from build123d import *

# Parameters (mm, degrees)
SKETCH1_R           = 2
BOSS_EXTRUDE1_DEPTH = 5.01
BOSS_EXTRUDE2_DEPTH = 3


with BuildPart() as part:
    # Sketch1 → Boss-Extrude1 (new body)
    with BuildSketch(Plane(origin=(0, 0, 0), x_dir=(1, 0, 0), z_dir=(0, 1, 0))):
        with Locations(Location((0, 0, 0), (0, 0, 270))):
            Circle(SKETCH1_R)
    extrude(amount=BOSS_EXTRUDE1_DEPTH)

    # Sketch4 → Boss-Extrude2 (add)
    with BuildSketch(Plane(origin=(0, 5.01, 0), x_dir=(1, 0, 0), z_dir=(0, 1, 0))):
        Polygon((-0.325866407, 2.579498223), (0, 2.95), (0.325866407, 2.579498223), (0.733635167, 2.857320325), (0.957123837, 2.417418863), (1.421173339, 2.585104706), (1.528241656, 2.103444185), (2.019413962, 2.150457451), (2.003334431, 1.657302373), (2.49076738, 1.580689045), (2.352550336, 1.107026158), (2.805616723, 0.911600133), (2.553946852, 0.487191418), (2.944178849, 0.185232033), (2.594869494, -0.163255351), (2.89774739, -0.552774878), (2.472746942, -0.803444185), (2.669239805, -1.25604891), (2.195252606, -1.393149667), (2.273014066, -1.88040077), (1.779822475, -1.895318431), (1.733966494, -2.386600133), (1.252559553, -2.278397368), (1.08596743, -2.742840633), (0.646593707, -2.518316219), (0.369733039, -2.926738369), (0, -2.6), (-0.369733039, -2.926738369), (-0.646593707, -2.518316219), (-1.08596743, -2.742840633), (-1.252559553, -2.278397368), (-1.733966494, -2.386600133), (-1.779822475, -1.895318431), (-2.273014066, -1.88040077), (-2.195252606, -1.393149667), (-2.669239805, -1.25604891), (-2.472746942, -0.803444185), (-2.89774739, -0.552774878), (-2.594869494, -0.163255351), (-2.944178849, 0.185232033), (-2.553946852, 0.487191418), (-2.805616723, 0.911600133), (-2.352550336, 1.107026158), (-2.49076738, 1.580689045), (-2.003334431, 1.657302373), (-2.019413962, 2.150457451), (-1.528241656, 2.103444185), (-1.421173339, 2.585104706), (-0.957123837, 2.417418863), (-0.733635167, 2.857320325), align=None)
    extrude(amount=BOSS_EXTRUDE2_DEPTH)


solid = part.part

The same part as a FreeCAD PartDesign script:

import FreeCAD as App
import Part
import Sketcher


def add_polygon(sketch, points):
    """Adds a closed chain of lines whose ends are joined by coincident constraints."""
    first, n = sketch.GeometryCount, len(points)
    for a, b in zip(points, points[1:] + points[:1]):
        sketch.addGeometry(Part.LineSegment(App.Vector(*a, 0), App.Vector(*b, 0)), False)
    for i in range(n):
        sketch.addConstraint(Sketcher.Constraint("Coincident", first + i, 2, first + (i + 1) % n, 1))

doc = App.newDocument("Part")
body = doc.addObject("PartDesign::Body", "Body")

sketch1 = body.newObject("Sketcher::SketchObject", "Sketch")
sketch1.AttachmentSupport = (doc.getObject("XZ_Plane"), [""])
sketch1.MapMode = "FlatFace"
sketch1.addGeometry(Part.Circle(App.Vector(0, 0, 0), App.Vector(0, 0, 1), 2), False)
sketch1.addConstraint([
    Sketcher.Constraint("Coincident", 0, 3, -1, 1),
    Sketcher.Constraint("Diameter", 0, 4.0),
])
pad1 = body.newObject("PartDesign::Pad", "Pad")
pad1.Profile = sketch1
pad1.Length = 5.01
pad1.Reversed = True

sketch2 = body.newObject("Sketcher::SketchObject", "Sketch001")
sketch2.AttachmentSupport = (doc.getObject("XZ_Plane"), [""])
sketch2.MapMode = "FlatFace"
sketch2.AttachmentOffset = App.Placement(App.Vector(0, 0, -5.01), App.Rotation())
add_polygon(sketch2, [(0, -2.95), (-0.325866, -2.579498), (-0.733635, -2.85732), (-0.957124, -2.417419), (-1.421173, -2.585105), (-1.528242, -2.103444), (-2.019414, -2.150457), (-2.003334, -1.657302), (-2.490767, -1.580689), (-2.35255, -1.107026), (-2.805617, -0.9116), (-2.553947, -0.487191), (-2.944179, -0.185232), (-2.594869, 0.163255), (-2.897747, 0.552775), (-2.472747, 0.803444), (-2.66924, 1.256049), (-2.195253, 1.39315), (-2.273014, 1.880401), (-1.779822, 1.895318), (-1.733966, 2.3866), (-1.25256, 2.278397), (-1.085967, 2.742841), (-0.646594, 2.518316), (-0.369733, 2.926738), (0, 2.6), (0.369733, 2.926738), (0.646594, 2.518316), (1.085967, 2.742841), (1.25256, 2.278397), (1.733966, 2.3866), (1.779822, 1.895318), (2.273014, 1.880401), (2.195253, 1.39315), (2.66924, 1.256049), (2.472747, 0.803444), (2.897747, 0.552775), (2.594869, 0.163255), (2.944179, -0.185232), (2.553947, -0.487191), (2.805617, -0.9116), (2.35255, -1.107026), (2.490767, -1.580689), (2.003334, -1.657302), (2.019414, -2.150457), (1.528242, -2.103444), (1.421173, -2.585105), (0.957124, -2.417419), (0.733635, -2.85732), (0.325866, -2.579498)])
sketch2.addConstraint([
    Sketcher.Constraint("PointOnObject", 24, 2, -2),
    Sketcher.Constraint("PointOnObject", 49, 2, -2),
    Sketcher.Constraint("DistanceY", -1, 1, 24, 2, 2.6),
    Sketcher.Constraint("DistanceY", 49, 2, -1, 1, 2.95),
    Sketcher.Constraint("DistanceX", 13, 2, 14, 2, 0.425),
    Sketcher.Constraint("DistanceX", 19, 2, 21, 2, 0.647999),
    Sketcher.Constraint("DistanceX", 27, 2, 29, 2, 0.647999),
    Sketcher.Constraint("DistanceX", 34, 2, 35, 2, 0.425),
    Sketcher.Constraint("DistanceY", 0, 2, -1, 1, 2.579498),
    Sketcher.Constraint("DistanceY", 9, 2, -1, 1, 0.9116),
    Sketcher.Constraint("DistanceY", -1, 1, 17, 2, 1.880401),
    Sketcher.Constraint("DistanceY", -1, 1, 19, 2, 2.3866),
    Sketcher.Constraint("DistanceY", -1, 1, 29, 2, 2.3866),
    Sketcher.Constraint("DistanceY", -1, 1, 31, 2, 1.880401),
    Sketcher.Constraint("DistanceY", 39, 2, -1, 1, 0.9116),
    Sketcher.Constraint("DistanceY", 48, 2, -1, 1, 2.579498),
    Sketcher.Constraint("DistanceY", 1, 2, 2, 2, 0.439901),
    Sketcher.Constraint("DistanceX", 6, 2, 1, 2, 1.269699),
    Sketcher.Constraint("DistanceX", 13, 2, 10, 2, 0.343801),
    Sketcher.Constraint("DistanceY", 8, 2, 13, 2, 1.659801),
    Sketcher.Constraint("DistanceY", 15, 2, 16, 2, 0.137101),
    Sketcher.Constraint("DistanceX", 21, 2, 25, 2, 1.4557),
    Sketcher.Constraint("DistanceX", 23, 2, 27, 2, 1.4557),
    Sketcher.Constraint("DistanceY", 33, 2, 32, 2, 0.137101),
    Sketcher.Constraint("DistanceX", 38, 2, 35, 2, 0.343801),
    Sketcher.Constraint("DistanceY", 40, 2, 35, 2, 1.659801),
    Sketcher.Constraint("DistanceY", 47, 2, 46, 2, 0.439901),
    Sketcher.Constraint("DistanceX", 0, 2, 47, 2, 1.059502),
    Sketcher.Constraint("DistanceX", 1, 2, 48, 2, 1.059502),
    Sketcher.Constraint("DistanceY", 1, 2, -1, 1, 2.85732),
    Sketcher.Constraint("DistanceX", 4, 2, -1, 1, 1.528242),
    Sketcher.Constraint("DistanceY", 7, 2, -1, 1, 1.580689),
    Sketcher.Constraint("DistanceX", 8, 2, -1, 1, 2.35255),
    Sketcher.Constraint("DistanceY", 10, 2, -1, 1, 0.487191),
    Sketcher.Constraint("DistanceX", 11, 2, -1, 1, 2.944179),
    Sketcher.Constraint("DistanceX", 12, 2, -1, 1, 2.594869),
    Sketcher.Constraint("DistanceX", 15, 2, -1, 1, 2.66924),
    Sketcher.Constraint("DistanceY", -1, 1, 15, 2, 1.256049),
    Sketcher.Constraint("DistanceY", -1, 1, 18, 2, 1.895318),
    Sketcher.Constraint("DistanceX", 20, 2, -1, 1, 1.25256),
    Sketcher.Constraint("DistanceY", -1, 1, 21, 2, 2.742841),
    Sketcher.Constraint("DistanceY", -1, 1, 23, 2, 2.926738),
    Sketcher.Constraint("DistanceY", -1, 1, 25, 2, 2.926738),
    Sketcher.Constraint("DistanceY", -1, 1, 27, 2, 2.742841),
    Sketcher.Constraint("DistanceX", -1, 1, 28, 2, 1.25256),
    Sketcher.Constraint("DistanceY", -1, 1, 30, 2, 1.895318),
    Sketcher.Constraint("DistanceY", -1, 1, 32, 2, 1.39315),
    Sketcher.Constraint("DistanceX", -1, 1, 33, 2, 2.66924),
    Sketcher.Constraint("DistanceX", -1, 1, 36, 2, 2.594869),
    Sketcher.Constraint("DistanceX", -1, 1, 37, 2, 2.944179),
    Sketcher.Constraint("DistanceY", 38, 2, -1, 1, 0.487191),
    Sketcher.Constraint("DistanceX", -1, 1, 40, 2, 2.35255),
    Sketcher.Constraint("DistanceY", 41, 2, -1, 1, 1.580689),
    Sketcher.Constraint("DistanceX", -1, 1, 44, 2, 1.528242),
    Sketcher.Constraint("DistanceY", 46, 2, -1, 1, 2.417419),
    Sketcher.Constraint("DistanceX", 1, 2, 0, 2, 0.407769),
    Sketcher.Constraint("DistanceX", 2, 2, 1, 2, 0.223489),
    Sketcher.Constraint("DistanceX", 3, 2, 2, 2, 0.46405),
    Sketcher.Constraint("DistanceX", 4, 2, 3, 2, 0.107068),
    Sketcher.Constraint("DistanceY", 3, 2, 4, 2, 0.481661),
    Sketcher.Constraint("DistanceX", 5, 2, 3, 2, 0.598241),
    Sketcher.Constraint("DistanceY", 2, 2, 5, 2, 0.266961),
    Sketcher.Constraint("DistanceY", 4, 2, 6, 2, 0.446142),
    Sketcher.Constraint("DistanceY", 5, 2, 8, 2, 1.043431),
    Sketcher.Constraint("DistanceY", 4, 2, 8, 2, 0.996418),
    Sketcher.Constraint("DistanceX", 9, 2, 7, 2, 0.314849),
    Sketcher.Constraint("DistanceX", 9, 2, 10, 2, 0.25167),
    Sketcher.Constraint("DistanceX", 11, 2, 10, 2, 0.390232),
    Sketcher.Constraint("DistanceY", 10, 2, 11, 2, 0.301959),
    Sketcher.Constraint("DistanceY", 8, 2, 12, 2, 1.270282),
    Sketcher.Constraint("DistanceY", 13, 2, 14, 2, 0.250669),
    Sketcher.Constraint("DistanceX", 17, 2, 16, 2, 0.077761),
    Sketcher.Constraint("DistanceX", 17, 2, 18, 2, 0.493192),
    Sketcher.Constraint("DistanceX", 14, 2, 19, 2, 0.73878),
    Sketcher.Constraint("DistanceY", 18, 2, 20, 2, 0.383079),
    Sketcher.Constraint("DistanceY", 20, 2, 22, 2, 0.239919),
    Sketcher.Constraint("DistanceX", 18, 2, 22, 2, 1.133229),
    Sketcher.Constraint("DistanceX", 22, 2, 23, 2, 0.276861),
    Sketcher.Constraint("DistanceX", 25, 2, 26, 2, 0.276861),
    Sketcher.Constraint("DistanceY", 28, 2, 26, 2, 0.239919),
    Sketcher.Constraint("DistanceY", 28, 2, 25, 2, 0.648341),
    Sketcher.Constraint("DistanceX", 26, 2, 30, 2, 1.133229),
    Sketcher.Constraint("DistanceX", 30, 2, 31, 2, 0.493192),
    Sketcher.Constraint("DistanceX", 32, 2, 31, 2, 0.077761),
    Sketcher.Constraint("DistanceX", 29, 2, 34, 2, 0.73878),
    Sketcher.Constraint("DistanceY", 35, 2, 34, 2, 0.250669),
    Sketcher.Constraint("DistanceY", 36, 2, 35, 2, 0.38952),
    Sketcher.Constraint("DistanceX", 35, 2, 37, 2, 0.046431),
    Sketcher.Constraint("DistanceY", 37, 2, 33, 2, 1.441281),
    Sketcher.Constraint("DistanceX", 38, 2, 39, 2, 0.25167),
    Sketcher.Constraint("DistanceX", 41, 2, 39, 2, 0.314849),
    Sketcher.Constraint("DistanceY", 42, 2, 38, 2, 1.170111),
    Sketcher.Constraint("DistanceX", 42, 2, 43, 2, 0.01608),
    Sketcher.Constraint("DistanceY", 43, 2, 41, 2, 0.569768),
    Sketcher.Constraint("DistanceY", 43, 2, 40, 2, 1.043431),
    Sketcher.Constraint("DistanceY", 44, 2, 42, 2, 0.446142),
    Sketcher.Constraint("DistanceX", 45, 2, 44, 2, 0.107068),
    Sketcher.Constraint("DistanceY", 45, 2, 44, 2, 0.481661),
    Sketcher.Constraint("DistanceX", 45, 2, 43, 2, 0.598241),
    Sketcher.Constraint("DistanceX", 46, 2, 45, 2, 0.46405),
])
pad2 = body.newObject("PartDesign::Pad", "Pad001")
pad2.Profile = sketch2
pad2.Length = 3
pad2.Reversed = True

doc.recompute()
